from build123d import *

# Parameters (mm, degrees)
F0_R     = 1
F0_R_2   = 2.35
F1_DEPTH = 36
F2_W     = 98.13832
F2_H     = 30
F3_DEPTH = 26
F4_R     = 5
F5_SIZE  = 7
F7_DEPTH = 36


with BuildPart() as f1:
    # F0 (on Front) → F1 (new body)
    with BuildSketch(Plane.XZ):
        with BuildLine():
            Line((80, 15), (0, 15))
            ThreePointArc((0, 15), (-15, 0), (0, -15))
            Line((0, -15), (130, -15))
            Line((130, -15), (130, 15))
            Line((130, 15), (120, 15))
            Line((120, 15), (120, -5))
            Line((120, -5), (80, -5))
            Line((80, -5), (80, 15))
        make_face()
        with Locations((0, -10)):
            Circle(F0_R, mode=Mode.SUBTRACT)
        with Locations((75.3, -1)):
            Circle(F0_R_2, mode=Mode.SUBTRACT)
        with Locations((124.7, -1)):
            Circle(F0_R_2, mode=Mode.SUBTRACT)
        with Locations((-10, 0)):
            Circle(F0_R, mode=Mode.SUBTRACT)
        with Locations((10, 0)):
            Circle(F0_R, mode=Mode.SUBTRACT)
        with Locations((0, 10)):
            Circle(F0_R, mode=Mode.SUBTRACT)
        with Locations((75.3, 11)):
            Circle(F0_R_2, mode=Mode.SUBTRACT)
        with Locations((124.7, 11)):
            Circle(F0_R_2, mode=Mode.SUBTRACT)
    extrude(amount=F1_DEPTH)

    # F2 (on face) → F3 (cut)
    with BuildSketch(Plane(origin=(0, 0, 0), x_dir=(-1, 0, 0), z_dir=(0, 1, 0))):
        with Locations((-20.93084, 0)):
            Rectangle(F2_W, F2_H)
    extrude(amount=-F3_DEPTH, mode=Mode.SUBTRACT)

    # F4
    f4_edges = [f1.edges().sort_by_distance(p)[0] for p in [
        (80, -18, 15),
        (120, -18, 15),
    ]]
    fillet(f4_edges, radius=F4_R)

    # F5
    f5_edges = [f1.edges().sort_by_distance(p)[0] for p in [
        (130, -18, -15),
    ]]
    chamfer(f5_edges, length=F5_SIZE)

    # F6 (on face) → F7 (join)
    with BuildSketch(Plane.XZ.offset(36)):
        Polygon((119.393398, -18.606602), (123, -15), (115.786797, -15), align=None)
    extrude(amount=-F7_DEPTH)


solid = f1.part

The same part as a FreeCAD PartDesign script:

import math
import FreeCAD as App
import Part
import Sketcher

V = App.Vector


def edges_at(feature, points):
    """Names of the edges that pass closest to the given points."""
    edges = feature.Shape.Edges
    near = lambda p: min(range(len(edges)), key=lambda i: edges[i].distToShape(Part.Vertex(*p))[0])
    return sorted({f"Edge{near(p) + 1}" for p in points})

doc = App.newDocument("Part")
params = doc.addObject("Spreadsheet::Sheet", "Params")
for row, (alias, value) in enumerate([
    ("sketch1_diameter", "2 mm"),
    ("sketch1_radius", "15 mm"),
    ("sketch1_diameter2", "4.7 mm"),
    ("sketch1_width", "80 mm"),
    ("sketch1_width2", "130 mm"),
    ("pad1_length", "36 mm"),
    ("sketch2_height", "30 mm"),
    ("pocket1_length", "26 mm"),
    ("fillet_radius", "5 mm"),
    ("chamfer_size", "7 mm"),
    ("pad2_length", "36 mm"),
], start=1):
    params.set(f"A{row}", alias)
    params.set(f"B{row}", "=" + value)
    params.setAlias(f"B{row}", alias)

body = doc.addObject("PartDesign::Body", "Body")

sketch1 = body.newObject("Sketcher::SketchObject", "Sketch")
sketch1.AttachmentSupport = (doc.getObject("XZ_Plane"), [""])
sketch1.MapMode = "FlatFace"
sketch1.addGeometry([
    Part.LineSegment(V(80, 15, 0), V(0, 15, 0)),
    Part.ArcOfCircle(Part.Circle(V(0, 0, 0), V(0, 0, 1), 15), math.radians(90), math.radians(270)),
    Part.LineSegment(V(0, -15, 0), V(130, -15, 0)),
    Part.LineSegment(V(130, -15, 0), V(130, 15, 0)),
    Part.LineSegment(V(130, 15, 0), V(120, 15, 0)),
    Part.LineSegment(V(120, 15, 0), V(120, -5, 0)),
    Part.LineSegment(V(120, -5, 0), V(80, -5, 0)),
    Part.LineSegment(V(80, -5, 0), V(80, 15, 0)),
    Part.Circle(V(0, -10, 0), V(0, 0, 1), 1),
    Part.Circle(V(-10, 0, 0), V(0, 0, 1), 1),
    Part.Circle(V(10, 0, 0), V(0, 0, 1), 1),
    Part.Circle(V(75.3, -1, 0), V(0, 0, 1), 2.4),
    Part.Circle(V(124.7, -1, 0), V(0, 0, 1), 2.4),
    Part.Circle(V(0, 10, 0), V(0, 0, 1), 1),
    Part.Circle(V(75.3, 11, 0), V(0, 0, 1), 2.4),
    Part.Circle(V(124.7, 11, 0), V(0, 0, 1), 2.4),
], False)
sketch1.addConstraint([
    Sketcher.Constraint("Tangent", 0, 2, 1, 1),
    Sketcher.Constraint("Tangent", 1, 2, 2, 1),
    Sketcher.Constraint("Coincident", 2, 2, 3, 1),
    Sketcher.Constraint("Coincident", 3, 2, 4, 1),
    Sketcher.Constraint("Coincident", 4, 2, 5, 1),
    Sketcher.Constraint("Coincident", 5, 2, 6, 1),
    Sketcher.Constraint("Coincident", 6, 2, 7, 1),
    Sketcher.Constraint("Coincident", 7, 2, 0, 1),
    Sketcher.Constraint("Horizontal", 0),
    Sketcher.Constraint("Horizontal", 2),
    Sketcher.Constraint("Vertical", 3),
    Sketcher.Constraint("Horizontal", 4),
    Sketcher.Constraint("Vertical", 5),
    Sketcher.Constraint("Horizontal", 6),
    Sketcher.Constraint("Vertical", 7),
    Sketcher.Constraint("Coincident", 1, 3, -1, 1),
    Sketcher.Constraint("Equal", 8, 9),
    Sketcher.Constraint("Equal", 9, 10),
    Sketcher.Constraint("Equal", 11, 12),
    Sketcher.Constraint("Equal", 10, 13),
    Sketcher.Constraint("Equal", 12, 14),
    Sketcher.Constraint("Equal", 14, 15),
    Sketcher.Constraint("Symmetric", 9, 3, 10, 3, -1, 1),
    Sketcher.Constraint("Symmetric", 8, 3, 13, 3, -1, 1),
    Sketcher.Constraint("PointOnObject", 8, 3, -2),
    Sketcher.Constraint("PointOnObject", 9, 3, -1),
    Sketcher.Constraint("Horizontal", 11, 3, 12, 3),
    Sketcher.Constraint("Horizontal", 14, 3, 15, 3),
    Sketcher.Constraint("Horizontal", 0, 2, 3, 2),
    Sketcher.Constraint("Vertical", 11, 3, 14, 3),
    Sketcher.Constraint("Vertical", 12, 3, 15, 3),
    Sketcher.Constraint("Diameter", 8, 2.0),
    Sketcher.Constraint("Radius", 1, 15.0),
    Sketcher.Constraint("Diameter", 11, 4.7),
    Sketcher.Constraint("DistanceX", 0, 2, 0, 1, 80.0),
    Sketcher.Constraint("DistanceX", 2, 1, 2, 2, 130.0),
    Sketcher.Constraint("DistanceX", 4, 2, 4, 1, 10.0),
    Sketcher.Constraint("DistanceY", 5, 2, 5, 1, 20.0),
    Sketcher.Constraint("DistanceY", 8, 3, -1, 1, 10.0),
    Sketcher.Constraint("DistanceX", 9, 3, -1, 1, 10.0),
    Sketcher.Constraint("DistanceY", 11, 3, -1, 1, 1.0),
    Sketcher.Constraint("DistanceY", -1, 1, 14, 3, 11.0),
    Sketcher.Constraint("DistanceX", -1, 1, 11, 3, 75.3),
    Sketcher.Constraint("DistanceX", -1, 1, 12, 3, 124.7),
])
sketch1.setExpression("Constraints[31]", "Params.sketch1_diameter")
sketch1.setExpression("Constraints[32]", "Params.sketch1_radius")
sketch1.setExpression("Constraints[33]", "Params.sketch1_diameter2")
sketch1.setExpression("Constraints[34]", "Params.sketch1_width")
sketch1.setExpression("Constraints[35]", "Params.sketch1_width2")
pad1 = body.newObject("PartDesign::Pad", "Pad")
pad1.Profile = sketch1
pad1.setExpression("Length", "Params.pad1_length")

sketch2 = body.newObject("Sketcher::SketchObject", "Sketch001")
sketch2.AttachmentSupport = (doc.getObject("XZ_Plane"), [""])
sketch2.MapMode = "FlatFace"
sketch2.addGeometry([
    Part.LineSegment(V(70, 15, 0), V(70, -15, 0)),
    Part.LineSegment(V(70, -15, 0), V(-28, -15, 0)),
    Part.LineSegment(V(-28, -15, 0), V(-28, 15, 0)),
    Part.LineSegment(V(-28, 15, 0), V(70, 15, 0)),
], False)
sketch2.addConstraint([
    Sketcher.Constraint("Coincident", 0, 2, 1, 1),
    Sketcher.Constraint("Coincident", 1, 2, 2, 1),
    Sketcher.Constraint("Coincident", 2, 2, 3, 1),
    Sketcher.Constraint("Coincident", 3, 2, 0, 1),
    Sketcher.Constraint("Vertical", 0),
    Sketcher.Constraint("Horizontal", 1),
    Sketcher.Constraint("Vertical", 2),
    Sketcher.Constraint("Horizontal", 3),
    Sketcher.Constraint("DistanceY", 0, 2, 0, 1, 30.0),
    Sketcher.Constraint("DistanceX", -1, 1, 0, 2, 70.0),
    Sketcher.Constraint("DistanceY", 0, 2, -1, 1, 15.0),
    Sketcher.Constraint("DistanceX", 1, 2, 1, 1, 98.13832),
])
sketch2.setExpression("Constraints[8]", "Params.sketch2_height")
pocket1 = body.newObject("PartDesign::Pocket", "Pocket")
pocket1.Profile = sketch2
pocket1.setExpression("Length", "Params.pocket1_length")
pocket1.Reversed = True
doc.recompute()

fillet = body.newObject("PartDesign::Fillet", "Fillet")
fillet.Base = (pocket1, edges_at(pocket1, [(80, -18, 15), (120, -18, 15)]))
fillet.setExpression("Radius", "Params.fillet_radius")
doc.recompute()

chamfer = body.newObject("PartDesign::Chamfer", "Chamfer")
chamfer.Base = (fillet, edges_at(fillet, [(130, -18, -15)]))
chamfer.setExpression("Size", "Params.chamfer_size")

sketch3 = body.newObject("Sketcher::SketchObject", "Sketch002")
sketch3.AttachmentSupport = (doc.getObject("XZ_Plane"), [""])
sketch3.MapMode = "FlatFace"
sketch3.AttachmentOffset = App.Placement(V(0, 0, 36), App.Rotation())
sketch3.addGeometry([
    Part.LineSegment(V(119, -19, 0), V(123, -15, 0)),
    Part.LineSegment(V(123, -15, 0), V(116, -15, 0)),
    Part.LineSegment(V(116, -15, 0), V(119, -19, 0)),
], False)
sketch3.addConstraint([
    Sketcher.Constraint("Coincident", 0, 2, 1, 1),
    Sketcher.Constraint("Coincident", 1, 2, 2, 1),
    Sketcher.Constraint("Coincident", 2, 2, 0, 1),
    Sketcher.Constraint("Horizontal", 1),
    Sketcher.Constraint("Perpendicular", 0, 2),
    Sketcher.Constraint("Equal", 0, 2),
    Sketcher.Constraint("DistanceX", -1, 1, 0, 2, 123.0),
    Sketcher.Constraint("DistanceY", 0, 2, -1, 1, 15.0),
    Sketcher.Constraint("DistanceX", -1, 1, 2, 2, 119.393398),
])
pad2 = body.newObject("PartDesign::Pad", "Pad001")
pad2.Profile = sketch3
pad2.setExpression("Length", "Params.pad2_length")
pad2.Reversed = True

doc.recompute()
